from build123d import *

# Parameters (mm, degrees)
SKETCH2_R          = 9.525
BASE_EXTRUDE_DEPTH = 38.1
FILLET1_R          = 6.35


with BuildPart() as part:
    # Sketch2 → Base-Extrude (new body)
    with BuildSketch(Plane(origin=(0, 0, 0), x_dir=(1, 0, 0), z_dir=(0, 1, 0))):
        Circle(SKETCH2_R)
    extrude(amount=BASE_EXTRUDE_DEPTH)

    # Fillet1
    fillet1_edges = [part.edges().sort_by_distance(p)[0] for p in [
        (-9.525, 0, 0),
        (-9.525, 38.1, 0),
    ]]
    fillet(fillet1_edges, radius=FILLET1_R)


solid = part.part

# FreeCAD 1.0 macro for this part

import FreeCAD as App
import Part
import Sketcher

V = App.Vector
Q = App.Units.Quantity


def edges_at(feature, points):
    """Names of the edges that pass closest to the given points."""
    edges = feature.Shape.Edges
    near = lambda p: min(range(len(edges)), key=lambda i: edges[i].distToShape(Part.Vertex(*p))[0])
    return sorted({f"Edge{near(p) + 1}" for p in points})

doc = App.newDocument("Part")
body = doc.addObject("PartDesign::Body", "Body")

# Sketch on XZ plane
sketch1 = body.newObject("Sketcher::SketchObject", "Sketch")
sketch1.AttachmentSupport = (doc.getObject("XZ_Plane"), [""])
sketch1.MapMode = "FlatFace"
sketch1.addGeometry(Part.Circle(V(0, 0, 0), V(0, 0, 1), 10), False)
sketch1.addConstraint(Sketcher.Constraint("Coincident", 0, 3, -1, 1))
sketch1.addConstraint(Sketcher.Constraint("Diameter", 0, Q("0.75 in")))
pad1 = body.newObject("PartDesign::Pad", "Pad")
pad1.Profile = sketch1
pad1.Length = Q("1.5 in")
pad1.Reversed = True
doc.recompute()

fillet = body.newObject("PartDesign::Fillet", "Fillet")
fillet.Base = (pad1, edges_at(pad1, [(-9.525, 0, 0), (-9.525, 38.1, 0)]))
fillet.Radius = Q("0.25 in")

doc.recompute()
